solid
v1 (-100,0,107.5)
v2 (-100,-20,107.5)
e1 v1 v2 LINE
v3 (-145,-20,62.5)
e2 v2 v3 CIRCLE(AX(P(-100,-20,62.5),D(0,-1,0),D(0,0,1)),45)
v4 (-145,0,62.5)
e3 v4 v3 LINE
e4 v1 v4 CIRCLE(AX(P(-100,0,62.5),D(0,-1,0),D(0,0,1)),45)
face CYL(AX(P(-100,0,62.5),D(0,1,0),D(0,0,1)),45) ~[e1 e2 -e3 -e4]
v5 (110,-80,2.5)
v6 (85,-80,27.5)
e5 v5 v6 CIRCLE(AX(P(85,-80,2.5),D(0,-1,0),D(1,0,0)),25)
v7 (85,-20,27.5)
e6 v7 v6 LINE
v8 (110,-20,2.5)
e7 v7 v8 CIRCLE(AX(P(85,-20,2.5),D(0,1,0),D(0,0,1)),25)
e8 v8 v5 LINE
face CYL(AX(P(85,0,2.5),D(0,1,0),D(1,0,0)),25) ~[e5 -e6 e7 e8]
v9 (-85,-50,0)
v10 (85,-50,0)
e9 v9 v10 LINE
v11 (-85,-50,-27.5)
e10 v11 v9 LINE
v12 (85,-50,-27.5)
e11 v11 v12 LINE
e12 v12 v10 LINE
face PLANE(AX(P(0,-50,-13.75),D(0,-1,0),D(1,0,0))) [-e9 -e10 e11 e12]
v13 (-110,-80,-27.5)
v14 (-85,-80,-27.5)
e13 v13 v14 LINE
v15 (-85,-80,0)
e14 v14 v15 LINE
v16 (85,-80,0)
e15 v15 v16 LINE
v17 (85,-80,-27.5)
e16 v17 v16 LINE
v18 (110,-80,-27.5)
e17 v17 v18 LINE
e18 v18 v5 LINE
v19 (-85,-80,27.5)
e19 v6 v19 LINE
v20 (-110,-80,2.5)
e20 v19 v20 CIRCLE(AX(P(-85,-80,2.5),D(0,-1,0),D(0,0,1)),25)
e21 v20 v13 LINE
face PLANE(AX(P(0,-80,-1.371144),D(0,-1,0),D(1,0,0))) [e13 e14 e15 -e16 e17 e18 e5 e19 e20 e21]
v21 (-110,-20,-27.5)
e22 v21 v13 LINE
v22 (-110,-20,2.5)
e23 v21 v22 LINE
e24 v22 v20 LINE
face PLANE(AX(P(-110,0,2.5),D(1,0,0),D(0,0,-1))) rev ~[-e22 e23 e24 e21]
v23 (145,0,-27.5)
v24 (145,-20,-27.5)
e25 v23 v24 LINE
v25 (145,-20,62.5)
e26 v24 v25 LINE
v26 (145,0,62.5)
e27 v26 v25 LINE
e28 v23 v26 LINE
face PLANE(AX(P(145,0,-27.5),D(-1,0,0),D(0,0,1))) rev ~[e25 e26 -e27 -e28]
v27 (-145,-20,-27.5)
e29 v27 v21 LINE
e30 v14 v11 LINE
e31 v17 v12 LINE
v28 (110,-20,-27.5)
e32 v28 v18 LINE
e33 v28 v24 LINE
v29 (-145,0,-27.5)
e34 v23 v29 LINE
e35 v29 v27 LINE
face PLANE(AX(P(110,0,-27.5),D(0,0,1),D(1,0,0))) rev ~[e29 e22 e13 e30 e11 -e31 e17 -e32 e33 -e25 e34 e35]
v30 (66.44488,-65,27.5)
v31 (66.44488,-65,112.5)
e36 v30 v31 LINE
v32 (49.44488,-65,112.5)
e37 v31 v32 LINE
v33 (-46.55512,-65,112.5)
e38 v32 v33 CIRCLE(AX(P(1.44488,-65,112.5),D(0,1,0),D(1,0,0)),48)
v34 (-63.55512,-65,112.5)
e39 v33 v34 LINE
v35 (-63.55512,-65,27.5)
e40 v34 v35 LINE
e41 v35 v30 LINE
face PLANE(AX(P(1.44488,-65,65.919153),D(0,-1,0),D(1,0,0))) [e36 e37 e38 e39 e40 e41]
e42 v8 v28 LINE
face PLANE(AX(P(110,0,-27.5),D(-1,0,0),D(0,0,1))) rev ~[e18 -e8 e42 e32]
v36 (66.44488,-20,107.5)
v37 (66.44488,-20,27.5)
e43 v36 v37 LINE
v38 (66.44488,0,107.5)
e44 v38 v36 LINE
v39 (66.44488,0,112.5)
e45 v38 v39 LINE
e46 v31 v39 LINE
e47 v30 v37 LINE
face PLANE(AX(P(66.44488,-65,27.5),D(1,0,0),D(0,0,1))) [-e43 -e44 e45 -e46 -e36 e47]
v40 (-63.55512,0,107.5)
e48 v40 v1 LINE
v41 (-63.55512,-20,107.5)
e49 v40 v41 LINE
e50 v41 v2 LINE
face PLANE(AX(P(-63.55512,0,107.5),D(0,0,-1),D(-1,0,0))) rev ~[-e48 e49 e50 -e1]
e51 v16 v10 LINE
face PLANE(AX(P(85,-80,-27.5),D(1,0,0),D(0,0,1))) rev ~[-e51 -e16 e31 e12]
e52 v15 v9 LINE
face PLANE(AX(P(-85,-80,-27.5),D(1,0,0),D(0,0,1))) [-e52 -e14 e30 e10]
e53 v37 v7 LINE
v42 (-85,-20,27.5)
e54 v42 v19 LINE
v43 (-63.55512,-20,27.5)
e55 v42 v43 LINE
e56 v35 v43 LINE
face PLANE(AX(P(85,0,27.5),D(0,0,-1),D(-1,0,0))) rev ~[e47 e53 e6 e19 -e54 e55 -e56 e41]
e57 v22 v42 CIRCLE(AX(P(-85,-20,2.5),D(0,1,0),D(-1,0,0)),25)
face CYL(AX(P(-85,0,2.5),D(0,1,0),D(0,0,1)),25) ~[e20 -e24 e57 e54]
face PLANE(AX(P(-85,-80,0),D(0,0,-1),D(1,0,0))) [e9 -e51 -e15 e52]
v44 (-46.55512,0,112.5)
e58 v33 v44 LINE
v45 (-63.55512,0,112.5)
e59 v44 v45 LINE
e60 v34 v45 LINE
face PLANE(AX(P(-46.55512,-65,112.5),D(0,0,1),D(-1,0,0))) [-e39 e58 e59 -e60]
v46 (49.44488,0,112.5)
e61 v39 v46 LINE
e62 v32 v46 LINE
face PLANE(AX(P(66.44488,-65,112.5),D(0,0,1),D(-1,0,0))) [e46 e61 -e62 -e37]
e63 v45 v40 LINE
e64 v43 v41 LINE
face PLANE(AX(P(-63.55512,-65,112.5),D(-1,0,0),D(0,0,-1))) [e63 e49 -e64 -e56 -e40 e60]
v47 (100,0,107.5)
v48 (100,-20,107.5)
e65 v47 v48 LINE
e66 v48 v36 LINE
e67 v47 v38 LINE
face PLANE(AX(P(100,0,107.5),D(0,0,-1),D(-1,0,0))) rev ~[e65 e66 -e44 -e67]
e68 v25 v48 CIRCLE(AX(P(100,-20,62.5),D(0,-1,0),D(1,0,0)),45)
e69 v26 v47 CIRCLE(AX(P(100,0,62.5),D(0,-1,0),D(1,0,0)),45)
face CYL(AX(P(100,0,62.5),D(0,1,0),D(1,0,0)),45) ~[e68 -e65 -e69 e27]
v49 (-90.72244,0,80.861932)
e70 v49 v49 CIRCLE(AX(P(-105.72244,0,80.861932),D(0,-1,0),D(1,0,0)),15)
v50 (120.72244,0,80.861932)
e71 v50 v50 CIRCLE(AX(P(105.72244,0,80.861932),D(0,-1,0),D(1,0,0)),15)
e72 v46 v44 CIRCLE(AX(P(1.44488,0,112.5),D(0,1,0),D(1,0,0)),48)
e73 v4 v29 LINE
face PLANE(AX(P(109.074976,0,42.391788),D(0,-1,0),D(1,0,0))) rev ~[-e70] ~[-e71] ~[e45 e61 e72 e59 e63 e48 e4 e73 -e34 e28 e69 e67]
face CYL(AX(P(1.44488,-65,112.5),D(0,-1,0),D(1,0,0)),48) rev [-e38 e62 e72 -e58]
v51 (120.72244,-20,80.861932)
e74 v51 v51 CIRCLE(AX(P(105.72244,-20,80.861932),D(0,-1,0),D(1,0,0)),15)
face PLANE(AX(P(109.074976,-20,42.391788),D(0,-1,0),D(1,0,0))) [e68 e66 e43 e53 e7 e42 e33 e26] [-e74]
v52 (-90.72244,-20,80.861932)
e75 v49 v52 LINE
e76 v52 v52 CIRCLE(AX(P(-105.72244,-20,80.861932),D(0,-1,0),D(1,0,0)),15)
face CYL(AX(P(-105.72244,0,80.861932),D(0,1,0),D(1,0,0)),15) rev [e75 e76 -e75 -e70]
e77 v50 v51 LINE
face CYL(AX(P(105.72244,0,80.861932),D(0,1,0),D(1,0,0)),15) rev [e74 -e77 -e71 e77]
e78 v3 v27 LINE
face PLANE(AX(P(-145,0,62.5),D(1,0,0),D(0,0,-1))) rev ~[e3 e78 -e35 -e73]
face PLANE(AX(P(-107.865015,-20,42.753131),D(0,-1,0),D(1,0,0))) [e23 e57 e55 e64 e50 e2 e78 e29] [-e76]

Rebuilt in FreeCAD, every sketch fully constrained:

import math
import FreeCAD as App
import Part
import Sketcher

doc = App.newDocument("Part")
body = doc.addObject("PartDesign::Body", "Body")

sketch1 = doc.addObject("Sketcher::SketchObject", "Sketch")
body.addObject(sketch1)
sketch1.AttachmentSupport = (doc.XZ_Plane, [""])
sketch1.MapMode = "FlatFace"
sketch1.addGeometry([
    Part.ArcOfCircle(Part.Circle(App.Vector(85, 2, 0), App.Vector(0, 0, 1), 25), math.radians(0), math.radians(90)),
    Part.LineSegment(App.Vector(85, 28, 0), App.Vector(-85, 28, 0)),
    Part.ArcOfCircle(Part.Circle(App.Vector(-85, 2, 0), App.Vector(0, 0, 1), 25), math.radians(90), math.radians(180)),
    Part.LineSegment(App.Vector(-110, 2, 0), App.Vector(-110, -28, 0)),
    Part.LineSegment(App.Vector(-110, -28, 0), App.Vector(110, -28, 0)),
    Part.LineSegment(App.Vector(110, -28, 0), App.Vector(110, 2, 0)),
], False)
sketch1.addConstraint([
    Sketcher.Constraint("Tangent", 0, 2, 1, 1),
    Sketcher.Constraint("Tangent", 1, 2, 2, 1),
    Sketcher.Constraint("Tangent", 2, 2, 3, 1),
    Sketcher.Constraint("Coincident", 3, 2, 4, 1),
    Sketcher.Constraint("Coincident", 4, 2, 5, 1),
    Sketcher.Constraint("Tangent", 5, 2, 0, 1),
    Sketcher.Constraint("Horizontal", 1),
    Sketcher.Constraint("Vertical", 3),
    Sketcher.Constraint("Horizontal", 4),
    Sketcher.Constraint("Vertical", 5),
    Sketcher.Constraint("Equal", 0, 2),
    Sketcher.Constraint("Radius", 0, 25.0),
    Sketcher.Constraint("DistanceX", 1, 2, 1, 1, 170.0),
    Sketcher.Constraint("DistanceY", 3, 2, 3, 1, 30.0),
    Sketcher.Constraint("DistanceX", -1, 1, 0, 3, 85.0),
    Sketcher.Constraint("DistanceY", -1, 1, 0, 3, 2.5),
])
pad1 = doc.addObject("PartDesign::Pad", "Pad")
body.addObject(pad1)
pad1.Profile = sketch1
pad1.Length = 80

sketch2 = doc.addObject("Sketcher::SketchObject", "Sketch001")
body.addObject(sketch2)
sketch2.AttachmentSupport = (doc.XZ_Plane, [""])
sketch2.MapMode = "FlatFace"
sketch2.AttachmentOffset = App.Placement(App.Vector(0, 0, 80), App.Rotation())
sketch2.addGeometry([
    Part.LineSegment(App.Vector(-85, 0, 0), App.Vector(-85, -28, 0)),
    Part.LineSegment(App.Vector(-85, -28, 0), App.Vector(85, -28, 0)),
    Part.LineSegment(App.Vector(85, -28, 0), App.Vector(85, 0, 0)),
    Part.LineSegment(App.Vector(85, 0, 0), App.Vector(-85, 0, 0)),
], False)
sketch2.addConstraint([
    Sketcher.Constraint("Coincident", 0, 2, 1, 1),
    Sketcher.Constraint("Coincident", 1, 2, 2, 1),
    Sketcher.Constraint("Coincident", 2, 2, 3, 1),
    Sketcher.Constraint("Coincident", 3, 2, 0, 1),
    Sketcher.Constraint("Vertical", 0),
    Sketcher.Constraint("Horizontal", 1),
    Sketcher.Constraint("Vertical", 2),
    Sketcher.Constraint("Horizontal", 3),
    Sketcher.Constraint("Symmetric", 2, 2, 3, 2, -1, 1),
    Sketcher.Constraint("DistanceX", 1, 1, 1, 2, 170.0),
    Sketcher.Constraint("DistanceY", 0, 2, 0, 1, 27.5),
])
pocket1 = doc.addObject("PartDesign::Pocket", "Pocket")
body.addObject(pocket1)
pocket1.Profile = sketch2
pocket1.Length = 30

sketch3 = doc.addObject("Sketcher::SketchObject", "Sketch002")
body.addObject(sketch3)
sketch3.AttachmentSupport = (doc.XZ_Plane, [""])
sketch3.MapMode = "FlatFace"
sketch3.AttachmentOffset = App.Placement(App.Vector(0, 0, 65), App.Rotation())
sketch3.addGeometry([
    Part.LineSegment(App.Vector(-47, 112, 0), App.Vector(-64, 112, 0)),
    Part.LineSegment(App.Vector(-64, 112, 0), App.Vector(-64, 28, 0)),
    Part.LineSegment(App.Vector(-64, 28, 0), App.Vector(66, 28, 0)),
    Part.LineSegment(App.Vector(66, 28, 0), App.Vector(66, 112, 0)),
    Part.LineSegment(App.Vector(66, 112, 0), App.Vector(49, 112, 0)),
    Part.ArcOfCircle(Part.Circle(App.Vector(1, 112, 0), App.Vector(0, 0, 1), 48), math.radians(180), math.radians(360)),
], False)
sketch3.addConstraint([
    Sketcher.Constraint("Coincident", 0, 2, 1, 1),
    Sketcher.Constraint("Coincident", 1, 2, 2, 1),
    Sketcher.Constraint("Coincident", 2, 2, 3, 1),
    Sketcher.Constraint("Coincident", 3, 2, 4, 1),
    Sketcher.Constraint("Coincident", 4, 2, 5, 2),
    Sketcher.Constraint("Coincident", 5, 1, 0, 1),
    Sketcher.Constraint("Horizontal", 0),
    Sketcher.Constraint("Vertical", 1),
    Sketcher.Constraint("Horizontal", 2),
    Sketcher.Constraint("Vertical", 3),
    Sketcher.Constraint("Horizontal", 4),
    Sketcher.Constraint("Horizontal", 5, 3, 0, 2),
    Sketcher.Constraint("Horizontal", 0, 2, 3, 2),
    Sketcher.Constraint("Equal", 0, 4),
    Sketcher.Constraint("Radius", 5, 48.0),
    Sketcher.Constraint("DistanceX", 0, 2, 0, 1, 17.0),
    Sketcher.Constraint("DistanceY", 1, 2, 1, 1, 85.0),
    Sketcher.Constraint("DistanceY", -1, 1, 5, 3, 112.5),
    Sketcher.Constraint("DistanceX", -1, 1, 5, 3, 1.44488),
])
pad2 = doc.addObject("PartDesign::Pad", "Pad001")
body.addObject(pad2)
pad2.Profile = sketch3
pad2.Length = 65
pad2.Reversed = True

sketch4 = doc.addObject("Sketcher::SketchObject", "Sketch003")
body.addObject(sketch4)
sketch4.AttachmentSupport = (doc.XZ_Plane, [""])
sketch4.MapMode = "FlatFace"
sketch4.addGeometry([
    Part.LineSegment(App.Vector(100, 108, 0), App.Vector(66, 108, 0)),
    Part.LineSegment(App.Vector(66, 108, 0), App.Vector(66, 28, 0)),
    Part.LineSegment(App.Vector(66, 28, 0), App.Vector(85, 28, 0)),
    Part.ArcOfCircle(Part.Circle(App.Vector(85, 2, 0), App.Vector(0, 0, 1), 25), math.radians(0), math.radians(90)),
    Part.LineSegment(App.Vector(110, 2, 0), App.Vector(110, -28, 0)),
    Part.LineSegment(App.Vector(110, -28, 0), App.Vector(145, -28, 0)),
    Part.LineSegment(App.Vector(145, -28, 0), App.Vector(145, 62, 0)),
    Part.ArcOfCircle(Part.Circle(App.Vector(100, 62, 0), App.Vector(0, 0, 1), 45), math.radians(0), math.radians(90)),
    Part.Circle(App.Vector(106, 81, 0), App.Vector(0, 0, 1), 15),
    Part.ArcOfCircle(Part.Circle(App.Vector(-100, 62, 0), App.Vector(0, 0, 1), 45), math.radians(90), math.radians(180)),
    Part.LineSegment(App.Vector(-145, 62, 0), App.Vector(-145, -28, 0)),
    Part.LineSegment(App.Vector(-145, -28, 0), App.Vector(-110, -28, 0)),
    Part.LineSegment(App.Vector(-110, -28, 0), App.Vector(-110, 2, 0)),
    Part.ArcOfCircle(Part.Circle(App.Vector(-85, 2, 0), App.Vector(0, 0, 1), 25), math.radians(90), math.radians(180)),
    Part.LineSegment(App.Vector(-85, 28, 0), App.Vector(-64, 28, 0)),
    Part.LineSegment(App.Vector(-64, 28, 0), App.Vector(-64, 108, 0)),
    Part.LineSegment(App.Vector(-64, 108, 0), App.Vector(-100, 108, 0)),
    Part.Circle(App.Vector(-106, 81, 0), App.Vector(0, 0, 1), 15),
], False)
sketch4.addConstraint([
    Sketcher.Constraint("Coincident", 0, 2, 1, 1),
    Sketcher.Constraint("Coincident", 1, 2, 2, 1),
    Sketcher.Constraint("Tangent", 2, 2, 3, 2),
    Sketcher.Constraint("Tangent", 3, 1, 4, 1),
    Sketcher.Constraint("Coincident", 4, 2, 5, 1),
    Sketcher.Constraint("Coincident", 5, 2, 6, 1),
    Sketcher.Constraint("Tangent", 6, 2, 7, 1),
    Sketcher.Constraint("Tangent", 7, 2, 0, 1),
    Sketcher.Constraint("Tangent", 9, 2, 10, 1),
    Sketcher.Constraint("Coincident", 10, 2, 11, 1),
    Sketcher.Constraint("Coincident", 11, 2, 12, 1),
    Sketcher.Constraint("Tangent", 12, 2, 13, 2),
    Sketcher.Constraint("Tangent", 13, 1, 14, 1),
    Sketcher.Constraint("Coincident", 14, 2, 15, 1),
    Sketcher.Constraint("Coincident", 15, 2, 16, 1),
    Sketcher.Constraint("Tangent", 16, 2, 9, 1),
    Sketcher.Constraint("Horizontal", 0),
    Sketcher.Constraint("Vertical", 1),
    Sketcher.Constraint("Horizontal", 2),
    Sketcher.Constraint("Vertical", 4),
    Sketcher.Constraint("Horizontal", 5),
    Sketcher.Constraint("Vertical", 6),
    Sketcher.Constraint("Vertical", 10),
    Sketcher.Constraint("Horizontal", 11),
    Sketcher.Constraint("Vertical", 12),
    Sketcher.Constraint("Horizontal", 14),
    Sketcher.Constraint("Vertical", 15),
    Sketcher.Constraint("Horizontal", 16),
    Sketcher.Constraint("Equal", 7, 9),
    Sketcher.Constraint("Equal", 3, 13),
    Sketcher.Constraint("Equal", 8, 17),
    Sketcher.Constraint("Symmetric", 7, 3, 9, 3, -2),
    Sketcher.Constraint("Symmetric", 3, 3, 13, 3, -2),
    Sketcher.Constraint("Symmetric", 8, 3, 17, 3, -2),
    Sketcher.Constraint("Horizontal", 5, 2, 10, 2),
    Sketcher.Constraint("Diameter", 8, 30.0),
    Sketcher.Constraint("Radius", 3, 25.0),
    Sketcher.Constraint("Radius", 7, 45.0),
    Sketcher.Constraint("DistanceX", 5, 1, 5, 2, 35.0),
    Sketcher.Constraint("DistanceY", 1, 2, 1, 1, 80.0),
    Sketcher.Constraint("DistanceY", 4, 2, 4, 1, 30.0),
    Sketcher.Constraint("DistanceX", -1, 1, 3, 3, 85.0),
    Sketcher.Constraint("DistanceY", -1, 1, 3, 3, 2.5),
    Sketcher.Constraint("DistanceX", 0, 2, 0, 1, 33.55512),
    Sketcher.Constraint("DistanceX", 14, 1, 14, 2, 21.44488),
    Sketcher.Constraint("DistanceX", -1, 1, 8, 3, 105.72244),
    Sketcher.Constraint("DistanceY", -1, 1, 8, 3, 80.861932),
])
pad3 = doc.addObject("PartDesign::Pad", "Pad002")
body.addObject(pad3)
pad3.Profile = sketch4
pad3.Length = 20

doc.recompute()
